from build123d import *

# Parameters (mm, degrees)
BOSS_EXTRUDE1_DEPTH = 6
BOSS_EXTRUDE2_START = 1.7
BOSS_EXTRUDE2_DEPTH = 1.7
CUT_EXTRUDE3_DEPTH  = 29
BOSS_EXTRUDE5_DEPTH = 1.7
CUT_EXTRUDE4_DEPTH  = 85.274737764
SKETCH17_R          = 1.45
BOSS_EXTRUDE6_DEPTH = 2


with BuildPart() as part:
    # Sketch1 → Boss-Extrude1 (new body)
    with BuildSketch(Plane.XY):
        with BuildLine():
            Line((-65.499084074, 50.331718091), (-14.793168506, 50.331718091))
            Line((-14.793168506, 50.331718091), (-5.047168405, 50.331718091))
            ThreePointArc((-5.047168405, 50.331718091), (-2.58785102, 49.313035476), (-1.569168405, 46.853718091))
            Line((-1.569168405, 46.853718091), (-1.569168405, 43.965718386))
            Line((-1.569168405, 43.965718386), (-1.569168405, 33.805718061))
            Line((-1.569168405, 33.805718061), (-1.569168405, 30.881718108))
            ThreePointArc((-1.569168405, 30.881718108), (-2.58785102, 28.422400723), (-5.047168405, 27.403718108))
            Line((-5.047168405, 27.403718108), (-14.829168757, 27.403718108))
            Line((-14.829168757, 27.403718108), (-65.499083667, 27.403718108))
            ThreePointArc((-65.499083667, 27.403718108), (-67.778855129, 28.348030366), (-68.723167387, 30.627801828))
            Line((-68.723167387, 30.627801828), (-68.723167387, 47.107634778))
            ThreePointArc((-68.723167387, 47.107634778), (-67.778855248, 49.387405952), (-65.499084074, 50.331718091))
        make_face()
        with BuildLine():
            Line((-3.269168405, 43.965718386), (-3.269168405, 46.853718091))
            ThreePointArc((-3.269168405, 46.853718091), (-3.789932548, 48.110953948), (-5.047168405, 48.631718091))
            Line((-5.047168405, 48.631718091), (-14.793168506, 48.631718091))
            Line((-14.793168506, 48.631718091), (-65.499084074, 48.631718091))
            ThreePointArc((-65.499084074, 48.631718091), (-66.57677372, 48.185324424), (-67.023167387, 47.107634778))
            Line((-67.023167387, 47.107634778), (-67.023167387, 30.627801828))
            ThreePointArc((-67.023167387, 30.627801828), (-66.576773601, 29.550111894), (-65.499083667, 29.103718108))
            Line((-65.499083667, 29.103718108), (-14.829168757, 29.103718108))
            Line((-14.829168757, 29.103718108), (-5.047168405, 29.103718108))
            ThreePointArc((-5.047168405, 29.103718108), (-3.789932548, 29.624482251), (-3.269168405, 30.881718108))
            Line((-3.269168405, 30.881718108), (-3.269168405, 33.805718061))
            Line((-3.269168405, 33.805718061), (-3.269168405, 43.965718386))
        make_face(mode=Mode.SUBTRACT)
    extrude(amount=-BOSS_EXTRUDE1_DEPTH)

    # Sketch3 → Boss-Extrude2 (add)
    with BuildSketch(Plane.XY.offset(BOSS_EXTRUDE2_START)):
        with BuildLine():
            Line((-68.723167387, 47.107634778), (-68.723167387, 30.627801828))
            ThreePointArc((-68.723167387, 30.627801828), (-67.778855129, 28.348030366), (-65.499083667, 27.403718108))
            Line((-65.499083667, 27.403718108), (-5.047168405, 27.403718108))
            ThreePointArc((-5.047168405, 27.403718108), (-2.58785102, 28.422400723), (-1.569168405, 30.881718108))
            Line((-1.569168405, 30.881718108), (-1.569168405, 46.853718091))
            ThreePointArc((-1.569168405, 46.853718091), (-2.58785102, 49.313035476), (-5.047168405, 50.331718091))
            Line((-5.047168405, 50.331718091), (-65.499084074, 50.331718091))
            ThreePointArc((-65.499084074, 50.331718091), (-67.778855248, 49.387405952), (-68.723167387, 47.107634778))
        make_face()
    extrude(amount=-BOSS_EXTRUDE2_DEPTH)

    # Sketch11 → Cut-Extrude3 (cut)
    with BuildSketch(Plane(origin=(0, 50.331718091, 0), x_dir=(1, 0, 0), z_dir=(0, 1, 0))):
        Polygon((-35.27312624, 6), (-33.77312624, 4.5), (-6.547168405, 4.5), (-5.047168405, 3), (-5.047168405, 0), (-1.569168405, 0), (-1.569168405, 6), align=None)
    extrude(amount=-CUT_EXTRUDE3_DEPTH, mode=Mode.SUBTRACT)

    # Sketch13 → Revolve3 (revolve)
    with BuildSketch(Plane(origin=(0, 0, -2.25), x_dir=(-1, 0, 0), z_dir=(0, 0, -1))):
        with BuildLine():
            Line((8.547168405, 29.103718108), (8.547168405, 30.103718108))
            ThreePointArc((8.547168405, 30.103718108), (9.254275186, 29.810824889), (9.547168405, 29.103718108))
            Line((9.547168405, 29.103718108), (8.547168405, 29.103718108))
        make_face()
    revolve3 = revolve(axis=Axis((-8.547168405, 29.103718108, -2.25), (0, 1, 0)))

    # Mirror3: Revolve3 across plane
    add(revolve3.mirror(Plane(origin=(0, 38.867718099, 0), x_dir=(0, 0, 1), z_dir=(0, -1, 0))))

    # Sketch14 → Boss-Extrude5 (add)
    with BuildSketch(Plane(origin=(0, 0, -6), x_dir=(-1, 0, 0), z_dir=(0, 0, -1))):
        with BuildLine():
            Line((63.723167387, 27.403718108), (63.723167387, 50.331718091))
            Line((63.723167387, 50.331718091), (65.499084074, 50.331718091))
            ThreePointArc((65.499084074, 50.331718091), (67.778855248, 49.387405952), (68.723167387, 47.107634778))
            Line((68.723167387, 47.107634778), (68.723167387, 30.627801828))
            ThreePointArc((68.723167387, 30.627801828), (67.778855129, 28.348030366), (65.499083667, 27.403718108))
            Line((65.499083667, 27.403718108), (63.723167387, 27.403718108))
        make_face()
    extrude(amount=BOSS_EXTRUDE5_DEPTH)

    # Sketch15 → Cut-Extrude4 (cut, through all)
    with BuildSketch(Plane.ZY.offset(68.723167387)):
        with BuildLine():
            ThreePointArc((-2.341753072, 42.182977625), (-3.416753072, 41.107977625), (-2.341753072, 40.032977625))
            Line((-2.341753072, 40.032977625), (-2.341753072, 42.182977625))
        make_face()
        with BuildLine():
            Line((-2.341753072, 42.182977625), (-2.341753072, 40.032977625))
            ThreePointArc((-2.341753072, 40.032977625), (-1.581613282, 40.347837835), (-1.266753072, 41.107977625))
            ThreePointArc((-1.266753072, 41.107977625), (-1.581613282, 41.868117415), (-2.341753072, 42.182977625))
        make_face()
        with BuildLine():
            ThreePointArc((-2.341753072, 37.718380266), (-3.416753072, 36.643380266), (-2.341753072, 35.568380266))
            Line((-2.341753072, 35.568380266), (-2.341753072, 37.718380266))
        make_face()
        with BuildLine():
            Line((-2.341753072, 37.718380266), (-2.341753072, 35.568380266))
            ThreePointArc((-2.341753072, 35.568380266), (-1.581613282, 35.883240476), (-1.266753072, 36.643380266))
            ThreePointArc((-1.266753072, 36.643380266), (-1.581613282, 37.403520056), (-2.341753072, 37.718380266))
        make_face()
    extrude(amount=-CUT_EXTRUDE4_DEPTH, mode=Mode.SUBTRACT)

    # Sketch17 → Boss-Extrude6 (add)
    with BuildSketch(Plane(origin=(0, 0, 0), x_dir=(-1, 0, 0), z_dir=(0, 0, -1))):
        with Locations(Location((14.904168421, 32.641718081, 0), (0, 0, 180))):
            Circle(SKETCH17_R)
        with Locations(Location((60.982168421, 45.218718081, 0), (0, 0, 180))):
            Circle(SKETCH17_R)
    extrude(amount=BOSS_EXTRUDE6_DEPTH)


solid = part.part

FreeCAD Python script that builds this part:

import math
import FreeCAD as App
import Part
import Sketcher
Q = App.Units.Quantity


def add_polygon(sketch, points):
    """Adds a closed chain of lines whose ends are joined by coincident constraints."""
    first, n = sketch.GeometryCount, len(points)
    for a, b in zip(points, points[1:] + points[:1]):
        sketch.addGeometry(Part.LineSegment(App.Vector(*a, 0), App.Vector(*b, 0)), False)
    for i in range(n):
        sketch.addConstraint(Sketcher.Constraint("Coincident", first + i, 2, first + (i + 1) % n, 1))

doc = App.newDocument("Part")
body = doc.addObject("PartDesign::Body", "Body")

sketch1 = doc.addObject("Sketcher::SketchObject", "Sketch")
body.addObject(sketch1)
sketch1.AttachmentSupport = (doc.XY_Plane, [""])
sketch1.MapMode = "FlatFace"
sketch1.addGeometry([
    Part.LineSegment(App.Vector(-5, 50.3, 0), App.Vector(-65.5, 50.3, 0)),
    Part.ArcOfCircle(Part.Circle(App.Vector(-65.5, 47.1, 0), App.Vector(0, 0, 1), 3.2), math.radians(90), math.radians(180)),
    Part.LineSegment(App.Vector(-68.7, 47.1, 0), App.Vector(-68.7, 30.6, 0)),
    Part.ArcOfCircle(Part.Circle(App.Vector(-65.5, 30.6, 0), App.Vector(0, 0, 1), 3.2), math.radians(180), math.radians(270)),
    Part.LineSegment(App.Vector(-65.5, 27.4, 0), App.Vector(-5, 27.4, 0)),
    Part.ArcOfCircle(Part.Circle(App.Vector(-5, 30.9, 0), App.Vector(0, 0, 1), 3.5), math.radians(-90), math.radians(0)),
    Part.LineSegment(App.Vector(-1.6, 30.9, 0), App.Vector(-1.6, 46.9, 0)),
    Part.ArcOfCircle(Part.Circle(App.Vector(-5, 46.9, 0), App.Vector(0, 0, 1), 3.5), math.radians(0), math.radians(90)),
    Part.LineSegment(App.Vector(-3.3, 46.9, 0), App.Vector(-3.3, 30.9, 0)),
    Part.ArcOfCircle(Part.Circle(App.Vector(-5, 30.9, 0), App.Vector(0, 0, 1), 1.8), math.radians(-90), math.radians(0)),
    Part.LineSegment(App.Vector(-5, 29.1, 0), App.Vector(-65.5, 29.1, 0)),
    Part.ArcOfCircle(Part.Circle(App.Vector(-65.5, 30.6, 0), App.Vector(0, 0, 1), 1.5), math.radians(180), math.radians(270)),
    Part.LineSegment(App.Vector(-67, 30.6, 0), App.Vector(-67, 47.1, 0)),
    Part.ArcOfCircle(Part.Circle(App.Vector(-65.5, 47.1, 0), App.Vector(0, 0, 1), 1.5), math.radians(90), math.radians(180)),
    Part.LineSegment(App.Vector(-65.5, 48.6, 0), App.Vector(-5, 48.6, 0)),
    Part.ArcOfCircle(Part.Circle(App.Vector(-5, 46.9, 0), App.Vector(0, 0, 1), 1.8), math.radians(0), math.radians(90)),
], False)
sketch1.addConstraint([
    Sketcher.Constraint("Tangent", 0, 2, 1, 1),
    Sketcher.Constraint("Tangent", 1, 2, 2, 1),
    Sketcher.Constraint("Tangent", 2, 2, 3, 1),
    Sketcher.Constraint("Tangent", 3, 2, 4, 1),
    Sketcher.Constraint("Tangent", 4, 2, 5, 1),
    Sketcher.Constraint("Tangent", 5, 2, 6, 1),
    Sketcher.Constraint("Tangent", 6, 2, 7, 1),
    Sketcher.Constraint("Tangent", 7, 2, 0, 1),
    Sketcher.Constraint("Tangent", 8, 2, 9, 2),
    Sketcher.Constraint("Tangent", 9, 1, 10, 1),
    Sketcher.Constraint("Tangent", 10, 2, 11, 2),
    Sketcher.Constraint("Tangent", 11, 1, 12, 1),
    Sketcher.Constraint("Tangent", 12, 2, 13, 2),
    Sketcher.Constraint("Tangent", 13, 1, 14, 1),
    Sketcher.Constraint("Tangent", 14, 2, 15, 2),
    Sketcher.Constraint("Tangent", 15, 1, 8, 1),
    Sketcher.Constraint("Horizontal", 0),
    Sketcher.Constraint("Vertical", 2),
    Sketcher.Constraint("Horizontal", 4),
    Sketcher.Constraint("Vertical", 6),
    Sketcher.Constraint("Vertical", 8),
    Sketcher.Constraint("Horizontal", 10),
    Sketcher.Constraint("Vertical", 12),
    Sketcher.Constraint("Horizontal", 14),
    Sketcher.Constraint("Coincident", 9, 3, 5, 3),
    Sketcher.Constraint("Coincident", 11, 3, 3, 3),
    Sketcher.Constraint("Coincident", 13, 3, 1, 3),
    Sketcher.Constraint("Equal", 1, 3),
    Sketcher.Constraint("Equal", 5, 7),
    Sketcher.Constraint("Equal", 9, 15),
    Sketcher.Constraint("Radius", 5, Q("3.478 mm")),
    Sketcher.Constraint("Radius", 9, Q("1.778 mm")),
    Sketcher.Constraint("DistanceY", 6, 1, 6, 2, Q("15.972 mm")),
    Sketcher.Constraint("Radius", 1, Q("3.224083 mm")),
    Sketcher.Constraint("DistanceY", -1, 1, 3, 3, Q("30.627802 mm")),
    Sketcher.Constraint("DistanceX", 0, 2, 0, 1, Q("60.451916 mm")),
    Sketcher.Constraint("DistanceX", 5, 3, -1, 1, Q("5.047168 mm")),
])
pad1 = doc.addObject("PartDesign::Pad", "Pad")
body.addObject(pad1)
pad1.Profile = sketch1
pad1.Length = 6
pad1.Reversed = True

sketch2 = doc.addObject("Sketcher::SketchObject", "Sketch001")
body.addObject(sketch2)
sketch2.AttachmentSupport = (doc.XY_Plane, [""])
sketch2.MapMode = "FlatFace"
sketch2.AttachmentOffset = App.Placement(App.Vector(0, 0, 1.7), App.Rotation())
sketch2.addGeometry([
    Part.LineSegment(App.Vector(-68.7, 47.1, 0), App.Vector(-68.7, 30.6, 0)),
    Part.ArcOfCircle(Part.Circle(App.Vector(-65.5, 30.6, 0), App.Vector(0, 0, 1), 3.2), math.radians(180), math.radians(270)),
    Part.LineSegment(App.Vector(-65.5, 27.4, 0), App.Vector(-5, 27.4, 0)),
    Part.ArcOfCircle(Part.Circle(App.Vector(-5, 30.9, 0), App.Vector(0, 0, 1), 3.5), math.radians(-90), math.radians(0)),
    Part.LineSegment(App.Vector(-1.6, 30.9, 0), App.Vector(-1.6, 46.9, 0)),
    Part.ArcOfCircle(Part.Circle(App.Vector(-5, 46.9, 0), App.Vector(0, 0, 1), 3.5), math.radians(0), math.radians(90)),
    Part.LineSegment(App.Vector(-5, 50.3, 0), App.Vector(-65.5, 50.3, 0)),
    Part.ArcOfCircle(Part.Circle(App.Vector(-65.5, 47.1, 0), App.Vector(0, 0, 1), 3.2), math.radians(90), math.radians(180)),
], False)
sketch2.addConstraint([
    Sketcher.Constraint("Tangent", 0, 2, 1, 1),
    Sketcher.Constraint("Tangent", 1, 2, 2, 1),
    Sketcher.Constraint("Tangent", 2, 2, 3, 1),
    Sketcher.Constraint("Tangent", 3, 2, 4, 1),
    Sketcher.Constraint("Tangent", 4, 2, 5, 1),
    Sketcher.Constraint("Tangent", 5, 2, 6, 1),
    Sketcher.Constraint("Tangent", 6, 2, 7, 1),
    Sketcher.Constraint("Tangent", 7, 2, 0, 1),
    Sketcher.Constraint("Vertical", 0),
    Sketcher.Constraint("Horizontal", 2),
    Sketcher.Constraint("Vertical", 4),
    Sketcher.Constraint("Horizontal", 6),
    Sketcher.Constraint("Equal", 3, 5),
    Sketcher.Constraint("Equal", 1, 7),
    Sketcher.Constraint("Radius", 3, Q("3.478 mm")),
    Sketcher.Constraint("DistanceY", 4, 1, 4, 2, Q("15.972 mm")),
    Sketcher.Constraint("Radius", 1, Q("3.224084 mm")),
    Sketcher.Constraint("DistanceX", 0, 2, 3, 3, Q("63.675999 mm")),
    Sketcher.Constraint("DistanceY", -1, 1, 1, 3, Q("30.627802 mm")),
    Sketcher.Constraint("DistanceX", 3, 3, -1, 1, Q("5.047168 mm")),
])
pad2 = doc.addObject("PartDesign::Pad", "Pad001")
body.addObject(pad2)
pad2.Profile = sketch2
pad2.Length = 1.7
pad2.Reversed = True

sketch3 = doc.addObject("Sketcher::SketchObject", "Sketch002")
body.addObject(sketch3)
sketch3.AttachmentSupport = (doc.XZ_Plane, [""])
sketch3.MapMode = "FlatFace"
sketch3.AttachmentOffset = App.Placement(App.Vector(0, 0, -50.331718), App.Rotation())
add_polygon(sketch3, [(-35.3, -6), (-33.8, -4.5), (-6.5, -4.5), (-5, -3), (-5, 0), (-1.6, 0), (-1.6, -6)])
sketch3.addConstraint([
    Sketcher.Constraint("Horizontal", 1),
    Sketcher.Constraint("Vertical", 3),
    Sketcher.Constraint("Horizontal", 4),
    Sketcher.Constraint("Vertical", 5),
    Sketcher.Constraint("Horizontal", 6),
    Sketcher.Constraint("PointOnObject", 3, 2, -1),
    Sketcher.Constraint("Parallel", 0, 2),
    Sketcher.Constraint("Equal", 0, 2),
    Sketcher.Constraint("DistanceY", 3, 1, 3, 2, Q("3 mm")),
    Sketcher.Constraint("DistanceY", 5, 2, 5, 1, Q("6 mm")),
    Sketcher.Constraint("Angle", 0, Q("45 deg")),
    Sketcher.Constraint("DistanceX", 4, 1, 4, 2, Q("3.478 mm")),
    Sketcher.Constraint("DistanceX", 1, 1, 1, 2, Q("27.225958 mm")),
    Sketcher.Constraint("DistanceX", 1, 2, -1, 1, Q("6.547168 mm")),
])
pocket1 = doc.addObject("PartDesign::Pocket", "Pocket")
body.addObject(pocket1)
pocket1.Profile = sketch3
pocket1.Length = 29
pocket1.Reversed = True

sketch4 = doc.addObject("Sketcher::SketchObject", "Sketch003")
body.addObject(sketch4)
sketch4.AttachmentSupport = (doc.XY_Plane, [""])
sketch4.MapMode = "FlatFace"
sketch4.AttachmentOffset = App.Placement(App.Vector(0, 0, -2.25), App.Rotation())
sketch4.addGeometry([
    Part.LineSegment(App.Vector(-8.5, 30.1, 0), App.Vector(-8.5, 29.1, 0)),
    Part.LineSegment(App.Vector(-8.5, 29.1, 0), App.Vector(-9.5, 29.1, 0)),
    Part.ArcOfCircle(Part.Circle(App.Vector(-8.5, 29.1, 0), App.Vector(0, 0, 1), 1), math.radians(90), math.radians(180)),
], False)
sketch4.addGeometry(Part.LineSegment(App.Vector(-8.5, 29.1, 0), App.Vector(-8.5, 30.1, 0)), True)
sketch4.addConstraint([
    Sketcher.Constraint("Coincident", 0, 2, 1, 1),
    Sketcher.Constraint("Coincident", 1, 2, 2, 2),
    Sketcher.Constraint("Coincident", 2, 1, 0, 1),
    Sketcher.Constraint("Vertical", 0),
    Sketcher.Constraint("Horizontal", 1),
    Sketcher.Constraint("Vertical", 3),
    Sketcher.Constraint("Coincident", 0, 2, 2, 3),
    Sketcher.Constraint("Coincident", 3, 1, 2, 3),
    Sketcher.Constraint("Equal", 0, 3),
    Sketcher.Constraint("Radius", 2, Q("1 mm")),
    Sketcher.Constraint("DistanceX", 2, 3, -1, 1, Q("8.547168 mm")),
    Sketcher.Constraint("DistanceY", -1, 1, 2, 3, Q("29.103718 mm")),
])
revolution = doc.addObject("PartDesign::Revolution", "Revolution")
body.addObject(revolution)
revolution.Profile = sketch4
revolution.ReferenceAxis = (sketch4, ["Axis0"])
revolution.Angle = 360
doc.recompute()

datumplane = doc.addObject("PartDesign::Plane", "DatumPlane")
body.addObject(datumplane)
datumplane.AttachmentSupport = (doc.XZ_Plane, [""])
datumplane.MapMode = "FlatFace"
datumplane.AttachmentOffset = App.Placement(App.Vector(0, 0, -38.867718), App.Rotation())
mirrored = doc.addObject("PartDesign::Mirrored", "Mirrored")
body.addObject(mirrored)
mirrored.Originals = [revolution]
mirrored.MirrorPlane = (datumplane, [""])
body.Tip = mirrored

sketch5 = doc.addObject("Sketcher::SketchObject", "Sketch004")
body.addObject(sketch5)
sketch5.AttachmentSupport = (doc.XY_Plane, [""])
sketch5.MapMode = "FlatFace"
sketch5.AttachmentOffset = App.Placement(App.Vector(0, 0, -6), App.Rotation())
sketch5.addGeometry([
    Part.LineSegment(App.Vector(-63.7, 50.3, 0), App.Vector(-63.7, 27.4, 0)),
    Part.LineSegment(App.Vector(-63.7, 27.4, 0), App.Vector(-65.5, 27.4, 0)),
    Part.ArcOfCircle(Part.Circle(App.Vector(-65.5, 30.6, 0), App.Vector(0, 0, 1), 3.2), math.radians(180), math.radians(270)),
    Part.LineSegment(App.Vector(-68.7, 30.6, 0), App.Vector(-68.7, 47.1, 0)),
    Part.ArcOfCircle(Part.Circle(App.Vector(-65.5, 47.1, 0), App.Vector(0, 0, 1), 3.2), math.radians(90), math.radians(180)),
    Part.LineSegment(App.Vector(-65.5, 50.3, 0), App.Vector(-63.7, 50.3, 0)),
], False)
sketch5.addConstraint([
    Sketcher.Constraint("Coincident", 0, 2, 1, 1),
    Sketcher.Constraint("Tangent", 1, 2, 2, 2),
    Sketcher.Constraint("Tangent", 2, 1, 3, 1),
    Sketcher.Constraint("Tangent", 3, 2, 4, 2),
    Sketcher.Constraint("Tangent", 4, 1, 5, 1),
    Sketcher.Constraint("Coincident", 5, 2, 0, 1),
    Sketcher.Constraint("Vertical", 0),
    Sketcher.Constraint("Horizontal", 1),
    Sketcher.Constraint("Vertical", 3),
    Sketcher.Constraint("Horizontal", 5),
    Sketcher.Constraint("Equal", 2, 4),
    Sketcher.Constraint("DistanceX", 2, 1, 0, 2, Q("5 mm")),
    Sketcher.Constraint("DistanceY", 0, 2, 0, 1, Q("22.928 mm")),
    Sketcher.Constraint("Radius", 2, Q("3.224084 mm")),
    Sketcher.Constraint("DistanceY", -1, 1, 2, 3, Q("30.627802 mm")),
    Sketcher.Constraint("DistanceX", 2, 3, -1, 1, Q("65.499084 mm")),
])
pad3 = doc.addObject("PartDesign::Pad", "Pad002")
body.addObject(pad3)
pad3.Profile = sketch5
pad3.Length = 1.7
pad3.Reversed = True

sketch6 = doc.addObject("Sketcher::SketchObject", "Sketch005")
body.addObject(sketch6)
sketch6.AttachmentSupport = (doc.YZ_Plane, [""])
sketch6.MapMode = "FlatFace"
sketch6.AttachmentOffset = App.Placement(App.Vector(0, 0, -68.723167), App.Rotation())
sketch6.addGeometry([
    Part.ArcOfCircle(Part.Circle(App.Vector(41.1, -2.3, 0), App.Vector(0, 0, 1), 1.1), math.radians(180), math.radians(360)),
    Part.ArcOfCircle(Part.Circle(App.Vector(41.1, -2.3, 0), App.Vector(0, 0, 1), 1.1), math.radians(90), math.radians(180)),
    Part.ArcOfCircle(Part.Circle(App.Vector(41.1, -2.3, 0), App.Vector(0, 0, 1), 1.1), math.radians(0), math.radians(90)),
    Part.ArcOfCircle(Part.Circle(App.Vector(36.6, -2.3, 0), App.Vector(0, 0, 1), 1.1), math.radians(180), math.radians(360)),
    Part.ArcOfCircle(Part.Circle(App.Vector(36.6, -2.3, 0), App.Vector(0, 0, 1), 1.1), math.radians(90), math.radians(180)),
    Part.ArcOfCircle(Part.Circle(App.Vector(36.6, -2.3, 0), App.Vector(0, 0, 1), 1.1), math.radians(0), math.radians(90)),
], False)
sketch6.addConstraint([
    Sketcher.Constraint("Tangent", 0, 1, 1, 2),
    Sketcher.Constraint("Tangent", 1, 1, 2, 2),
    Sketcher.Constraint("Tangent", 2, 1, 0, 2),
    Sketcher.Constraint("Tangent", 3, 1, 4, 2),
    Sketcher.Constraint("Tangent", 4, 1, 5, 2),
    Sketcher.Constraint("Tangent", 5, 1, 3, 2),
    Sketcher.Constraint("Equal", 2, 3),
    Sketcher.Constraint("Horizontal", 2, 3, 3, 3),
    Sketcher.Constraint("Horizontal", 5, 3, 0, 1),
    Sketcher.Constraint("Horizontal", 0, 1, 2, 1),
    Sketcher.Constraint("Horizontal", 2, 1, 3, 1),
    Sketcher.Constraint("Horizontal", 3, 1, 5, 1),
    Sketcher.Constraint("Vertical", 2, 3, 1, 1),
    Sketcher.Constraint("Vertical", 5, 3, 4, 1),
    Sketcher.Constraint("Radius", 0, Q("1.075 mm")),
    Sketcher.Constraint("DistanceX", -1, 1, 3, 3, Q("36.64338 mm")),
    Sketcher.Constraint("DistanceX", -1, 1, 0, 3, Q("41.107978 mm")),
    Sketcher.Constraint("DistanceY", 0, 3, -1, 1, Q("2.341753 mm")),
])
pocket2 = doc.addObject("PartDesign::Pocket", "Pocket001")
body.addObject(pocket2)
pocket2.Profile = sketch6
pocket2.Type = "ThroughAll"
pocket2.Reversed = True

sketch7 = doc.addObject("Sketcher::SketchObject", "Sketch006")
body.addObject(sketch7)
sketch7.AttachmentSupport = (doc.XY_Plane, [""])
sketch7.MapMode = "FlatFace"
sketch7.addGeometry([
    Part.Circle(App.Vector(-14.9, 32.6, 0), App.Vector(0, 0, 1), 1.4),
    Part.Circle(App.Vector(-61, 45.2, 0), App.Vector(0, 0, 1), 1.4),
], False)
sketch7.addConstraint([
    Sketcher.Constraint("Equal", 0, 1),
    Sketcher.Constraint("Diameter", 0, Q("2.9 mm")),
    Sketcher.Constraint("DistanceX", 1, 3, 0, 3, Q("46.078 mm")),
    Sketcher.Constraint("DistanceY", 0, 3, 1, 3, Q("12.577 mm")),
    Sketcher.Constraint("DistanceX", 0, 3, -1, 1, Q("14.904168 mm")),
    Sketcher.Constraint("DistanceY", -1, 1, 0, 3, Q("32.641718 mm")),
])
pad4 = doc.addObject("PartDesign::Pad", "Pad003")
body.addObject(pad4)
pad4.Profile = sketch7
pad4.Length = 2
pad4.Reversed = True

doc.recompute()
